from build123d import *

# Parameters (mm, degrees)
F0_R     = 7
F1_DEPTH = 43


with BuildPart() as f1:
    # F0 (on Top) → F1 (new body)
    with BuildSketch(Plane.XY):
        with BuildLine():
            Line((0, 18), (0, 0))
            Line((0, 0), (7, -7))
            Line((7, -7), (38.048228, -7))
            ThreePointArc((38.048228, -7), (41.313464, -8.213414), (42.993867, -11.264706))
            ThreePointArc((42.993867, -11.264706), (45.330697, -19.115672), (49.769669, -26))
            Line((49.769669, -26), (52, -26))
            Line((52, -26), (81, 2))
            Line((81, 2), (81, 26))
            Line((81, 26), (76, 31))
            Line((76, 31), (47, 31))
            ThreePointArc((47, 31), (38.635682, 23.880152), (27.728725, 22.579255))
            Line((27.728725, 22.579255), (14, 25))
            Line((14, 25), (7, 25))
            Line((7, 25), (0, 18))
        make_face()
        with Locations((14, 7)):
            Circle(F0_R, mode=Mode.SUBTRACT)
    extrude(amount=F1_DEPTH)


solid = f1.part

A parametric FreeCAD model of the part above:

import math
import FreeCAD as App
import Part
import Sketcher
from FreeCAD import Vector
Q = App.Units.Quantity

doc = App.newDocument("Part")
body = doc.addObject("PartDesign::Body", "Body")

# Sketch on XY plane
sketch1 = body.newObject("Sketcher::SketchObject", "Sketch")
sketch1.AttachmentSupport = (doc.getObject("XY_Plane"), [""])
sketch1.MapMode = "FlatFace"
sketch1.addGeometry([
    Part.LineSegment(Vector(0, 18, 0), Vector(0, 0, 0)),  # 0
    Part.LineSegment(Vector(0, 0, 0), Vector(7, -7, 0)),  # 1
    Part.LineSegment(Vector(7, -7, 0), Vector(38, -7, 0)),  # 2
    Part.ArcOfCircle(Part.Circle(Vector(38, -12, 0), Vector(0, 0, 1), 5), math.radians(8), math.radians(90)),  # 3
    Part.ArcOfCircle(Part.Circle(Vector(71.7, -7, 0), Vector(0, 0, 1), 29), math.radians(-172), math.radians(-139)),  # 4
    Part.LineSegment(Vector(49.8, -26, 0), Vector(52, -26, 0)),  # 5
    Part.LineSegment(Vector(52, -26, 0), Vector(81, 2, 0)),  # 6
    Part.LineSegment(Vector(81, 2, 0), Vector(81, 26, 0)),  # 7
    Part.LineSegment(Vector(81, 26, 0), Vector(76, 31, 0)),  # 8
    Part.LineSegment(Vector(76, 31, 0), Vector(47, 31, 0)),  # 9
    Part.ArcOfCircle(Part.Circle(Vector(31, 41.3, 0), Vector(0, 0, 1), 19), math.radians(-100), math.radians(-33)),  # 10
    Part.LineSegment(Vector(27.7, 22.6, 0), Vector(14, 25, 0)),  # 11
    Part.LineSegment(Vector(14, 25, 0), Vector(7, 25, 0)),  # 12
    Part.LineSegment(Vector(7, 25, 0), Vector(0, 18, 0)),  # 13
    Part.Circle(Vector(14, 7, 0), Vector(0, 0, 1), 7),  # 14
], False)
sketch1.addConstraint([
    Sketcher.Constraint("Coincident", 0, 2, 1, 1),
    Sketcher.Constraint("Coincident", 1, 2, 2, 1),
    Sketcher.Constraint("Tangent", 2, 2, 3, 2),
    Sketcher.Constraint("Tangent", 3, 1, 4, 1),
    Sketcher.Constraint("Coincident", 4, 2, 5, 1),
    Sketcher.Constraint("Coincident", 5, 2, 6, 1),
    Sketcher.Constraint("Coincident", 6, 2, 7, 1),
    Sketcher.Constraint("Coincident", 7, 2, 8, 1),
    Sketcher.Constraint("Coincident", 8, 2, 9, 1),
    Sketcher.Constraint("Coincident", 9, 2, 10, 2),
    Sketcher.Constraint("Tangent", 10, 1, 11, 1),
    Sketcher.Constraint("Coincident", 11, 2, 12, 1),
    Sketcher.Constraint("Coincident", 12, 2, 13, 1),
    Sketcher.Constraint("Coincident", 13, 2, 0, 1),
    Sketcher.Constraint("Vertical", 0),
    Sketcher.Constraint("Horizontal", 2),
    Sketcher.Constraint("Horizontal", 5),
    Sketcher.Constraint("Vertical", 7),
    Sketcher.Constraint("Horizontal", 9),
    Sketcher.Constraint("Horizontal", 12),
    Sketcher.Constraint("Coincident", 0, 2, -1, 1),
    Sketcher.Constraint("Parallel", 1, 8),
    Sketcher.Constraint("Perpendicular", 8, 13),
    Sketcher.Constraint("Horizontal", 4, 3, 1, 2),
    Sketcher.Constraint("Vertical", 14, 3, 11, 2),
    Sketcher.Constraint("Vertical", 1, 2, 12, 2),
    Sketcher.Constraint("Equal", 1, 13),
    Sketcher.Constraint("Diameter", 14, 14.0),
    Sketcher.Constraint("Radius", 3, 5.000001),
    Sketcher.Constraint("Radius", 4, 29.0),
    Sketcher.Constraint("Radius", 10, 19.0),
    Sketcher.Constraint("DistanceX", 9, 2, 9, 1, 29.0),
    Sketcher.Constraint("DistanceX", 12, 2, 12, 1, 7.0),
    Sketcher.Constraint("DistanceY", 0, 2, 0, 1, 18.0),
    Sketcher.Constraint("DistanceY", 7, 1, 7, 2, 24.0),
    Sketcher.Constraint("Angle", 11, Q("169.999998 deg")),
    Sketcher.Constraint("DistanceY", 3, 3, -1, 1, 12.000001),
    Sketcher.Constraint("DistanceY", -1, 1, 14, 3, 7.0),
    Sketcher.Constraint("DistanceY", 4, 2, -1, 1, 26.0),
    Sketcher.Constraint("DistanceX", -1, 1, 5, 2, 52.0),
    Sketcher.Constraint("DistanceX", -1, 1, 6, 2, 81.0),
    Sketcher.Constraint("DistanceY", -1, 1, 6, 2, 2.0),
    Sketcher.Constraint("DistanceX", -1, 1, 8, 2, 76.0),
    Sketcher.Constraint("DistanceX", 2, 1, 2, 2, 31.048228),
])
pad1 = body.newObject("PartDesign::Pad", "Pad")
pad1.Profile = sketch1
pad1.Length = 43

doc.recompute()
